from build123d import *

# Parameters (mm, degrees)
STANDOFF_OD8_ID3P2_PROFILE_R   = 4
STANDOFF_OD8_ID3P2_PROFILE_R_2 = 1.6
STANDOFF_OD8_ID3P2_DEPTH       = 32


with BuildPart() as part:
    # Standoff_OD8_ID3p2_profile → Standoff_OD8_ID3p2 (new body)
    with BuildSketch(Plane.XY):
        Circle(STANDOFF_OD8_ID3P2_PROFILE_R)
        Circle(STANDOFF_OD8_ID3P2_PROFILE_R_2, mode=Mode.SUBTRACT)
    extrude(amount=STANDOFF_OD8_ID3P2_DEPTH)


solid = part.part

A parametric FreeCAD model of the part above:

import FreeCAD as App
import Part
import Sketcher

doc = App.newDocument("Part")
body = doc.addObject("PartDesign::Body", "Body")

sketch1 = body.newObject("Sketcher::SketchObject", "Sketch")
sketch1.AttachmentSupport = (doc.getObject("XY_Plane"), [""])
sketch1.MapMode = "FlatFace"
sketch1.addGeometry(Part.Circle(App.Vector(0, 0, 0), App.Vector(0, 0, 1), 4), False)
sketch1.addGeometry(Part.Circle(App.Vector(0, 0, 0), App.Vector(0, 0, 1), 1.6), False)
sketch1.addConstraint(Sketcher.Constraint("Coincident", 0, 3, -1, 1))
sketch1.addConstraint(Sketcher.Constraint("Coincident", 1, 3, -1, 1))
sketch1.addConstraint(Sketcher.Constraint("Diameter", 0, 8.0))
sketch1.addConstraint(Sketcher.Constraint("Diameter", 1, 3.2))
pad1 = body.newObject("PartDesign::Pad", "Pad")
pad1.Profile = sketch1
pad1.Length = 32

doc.recompute()
